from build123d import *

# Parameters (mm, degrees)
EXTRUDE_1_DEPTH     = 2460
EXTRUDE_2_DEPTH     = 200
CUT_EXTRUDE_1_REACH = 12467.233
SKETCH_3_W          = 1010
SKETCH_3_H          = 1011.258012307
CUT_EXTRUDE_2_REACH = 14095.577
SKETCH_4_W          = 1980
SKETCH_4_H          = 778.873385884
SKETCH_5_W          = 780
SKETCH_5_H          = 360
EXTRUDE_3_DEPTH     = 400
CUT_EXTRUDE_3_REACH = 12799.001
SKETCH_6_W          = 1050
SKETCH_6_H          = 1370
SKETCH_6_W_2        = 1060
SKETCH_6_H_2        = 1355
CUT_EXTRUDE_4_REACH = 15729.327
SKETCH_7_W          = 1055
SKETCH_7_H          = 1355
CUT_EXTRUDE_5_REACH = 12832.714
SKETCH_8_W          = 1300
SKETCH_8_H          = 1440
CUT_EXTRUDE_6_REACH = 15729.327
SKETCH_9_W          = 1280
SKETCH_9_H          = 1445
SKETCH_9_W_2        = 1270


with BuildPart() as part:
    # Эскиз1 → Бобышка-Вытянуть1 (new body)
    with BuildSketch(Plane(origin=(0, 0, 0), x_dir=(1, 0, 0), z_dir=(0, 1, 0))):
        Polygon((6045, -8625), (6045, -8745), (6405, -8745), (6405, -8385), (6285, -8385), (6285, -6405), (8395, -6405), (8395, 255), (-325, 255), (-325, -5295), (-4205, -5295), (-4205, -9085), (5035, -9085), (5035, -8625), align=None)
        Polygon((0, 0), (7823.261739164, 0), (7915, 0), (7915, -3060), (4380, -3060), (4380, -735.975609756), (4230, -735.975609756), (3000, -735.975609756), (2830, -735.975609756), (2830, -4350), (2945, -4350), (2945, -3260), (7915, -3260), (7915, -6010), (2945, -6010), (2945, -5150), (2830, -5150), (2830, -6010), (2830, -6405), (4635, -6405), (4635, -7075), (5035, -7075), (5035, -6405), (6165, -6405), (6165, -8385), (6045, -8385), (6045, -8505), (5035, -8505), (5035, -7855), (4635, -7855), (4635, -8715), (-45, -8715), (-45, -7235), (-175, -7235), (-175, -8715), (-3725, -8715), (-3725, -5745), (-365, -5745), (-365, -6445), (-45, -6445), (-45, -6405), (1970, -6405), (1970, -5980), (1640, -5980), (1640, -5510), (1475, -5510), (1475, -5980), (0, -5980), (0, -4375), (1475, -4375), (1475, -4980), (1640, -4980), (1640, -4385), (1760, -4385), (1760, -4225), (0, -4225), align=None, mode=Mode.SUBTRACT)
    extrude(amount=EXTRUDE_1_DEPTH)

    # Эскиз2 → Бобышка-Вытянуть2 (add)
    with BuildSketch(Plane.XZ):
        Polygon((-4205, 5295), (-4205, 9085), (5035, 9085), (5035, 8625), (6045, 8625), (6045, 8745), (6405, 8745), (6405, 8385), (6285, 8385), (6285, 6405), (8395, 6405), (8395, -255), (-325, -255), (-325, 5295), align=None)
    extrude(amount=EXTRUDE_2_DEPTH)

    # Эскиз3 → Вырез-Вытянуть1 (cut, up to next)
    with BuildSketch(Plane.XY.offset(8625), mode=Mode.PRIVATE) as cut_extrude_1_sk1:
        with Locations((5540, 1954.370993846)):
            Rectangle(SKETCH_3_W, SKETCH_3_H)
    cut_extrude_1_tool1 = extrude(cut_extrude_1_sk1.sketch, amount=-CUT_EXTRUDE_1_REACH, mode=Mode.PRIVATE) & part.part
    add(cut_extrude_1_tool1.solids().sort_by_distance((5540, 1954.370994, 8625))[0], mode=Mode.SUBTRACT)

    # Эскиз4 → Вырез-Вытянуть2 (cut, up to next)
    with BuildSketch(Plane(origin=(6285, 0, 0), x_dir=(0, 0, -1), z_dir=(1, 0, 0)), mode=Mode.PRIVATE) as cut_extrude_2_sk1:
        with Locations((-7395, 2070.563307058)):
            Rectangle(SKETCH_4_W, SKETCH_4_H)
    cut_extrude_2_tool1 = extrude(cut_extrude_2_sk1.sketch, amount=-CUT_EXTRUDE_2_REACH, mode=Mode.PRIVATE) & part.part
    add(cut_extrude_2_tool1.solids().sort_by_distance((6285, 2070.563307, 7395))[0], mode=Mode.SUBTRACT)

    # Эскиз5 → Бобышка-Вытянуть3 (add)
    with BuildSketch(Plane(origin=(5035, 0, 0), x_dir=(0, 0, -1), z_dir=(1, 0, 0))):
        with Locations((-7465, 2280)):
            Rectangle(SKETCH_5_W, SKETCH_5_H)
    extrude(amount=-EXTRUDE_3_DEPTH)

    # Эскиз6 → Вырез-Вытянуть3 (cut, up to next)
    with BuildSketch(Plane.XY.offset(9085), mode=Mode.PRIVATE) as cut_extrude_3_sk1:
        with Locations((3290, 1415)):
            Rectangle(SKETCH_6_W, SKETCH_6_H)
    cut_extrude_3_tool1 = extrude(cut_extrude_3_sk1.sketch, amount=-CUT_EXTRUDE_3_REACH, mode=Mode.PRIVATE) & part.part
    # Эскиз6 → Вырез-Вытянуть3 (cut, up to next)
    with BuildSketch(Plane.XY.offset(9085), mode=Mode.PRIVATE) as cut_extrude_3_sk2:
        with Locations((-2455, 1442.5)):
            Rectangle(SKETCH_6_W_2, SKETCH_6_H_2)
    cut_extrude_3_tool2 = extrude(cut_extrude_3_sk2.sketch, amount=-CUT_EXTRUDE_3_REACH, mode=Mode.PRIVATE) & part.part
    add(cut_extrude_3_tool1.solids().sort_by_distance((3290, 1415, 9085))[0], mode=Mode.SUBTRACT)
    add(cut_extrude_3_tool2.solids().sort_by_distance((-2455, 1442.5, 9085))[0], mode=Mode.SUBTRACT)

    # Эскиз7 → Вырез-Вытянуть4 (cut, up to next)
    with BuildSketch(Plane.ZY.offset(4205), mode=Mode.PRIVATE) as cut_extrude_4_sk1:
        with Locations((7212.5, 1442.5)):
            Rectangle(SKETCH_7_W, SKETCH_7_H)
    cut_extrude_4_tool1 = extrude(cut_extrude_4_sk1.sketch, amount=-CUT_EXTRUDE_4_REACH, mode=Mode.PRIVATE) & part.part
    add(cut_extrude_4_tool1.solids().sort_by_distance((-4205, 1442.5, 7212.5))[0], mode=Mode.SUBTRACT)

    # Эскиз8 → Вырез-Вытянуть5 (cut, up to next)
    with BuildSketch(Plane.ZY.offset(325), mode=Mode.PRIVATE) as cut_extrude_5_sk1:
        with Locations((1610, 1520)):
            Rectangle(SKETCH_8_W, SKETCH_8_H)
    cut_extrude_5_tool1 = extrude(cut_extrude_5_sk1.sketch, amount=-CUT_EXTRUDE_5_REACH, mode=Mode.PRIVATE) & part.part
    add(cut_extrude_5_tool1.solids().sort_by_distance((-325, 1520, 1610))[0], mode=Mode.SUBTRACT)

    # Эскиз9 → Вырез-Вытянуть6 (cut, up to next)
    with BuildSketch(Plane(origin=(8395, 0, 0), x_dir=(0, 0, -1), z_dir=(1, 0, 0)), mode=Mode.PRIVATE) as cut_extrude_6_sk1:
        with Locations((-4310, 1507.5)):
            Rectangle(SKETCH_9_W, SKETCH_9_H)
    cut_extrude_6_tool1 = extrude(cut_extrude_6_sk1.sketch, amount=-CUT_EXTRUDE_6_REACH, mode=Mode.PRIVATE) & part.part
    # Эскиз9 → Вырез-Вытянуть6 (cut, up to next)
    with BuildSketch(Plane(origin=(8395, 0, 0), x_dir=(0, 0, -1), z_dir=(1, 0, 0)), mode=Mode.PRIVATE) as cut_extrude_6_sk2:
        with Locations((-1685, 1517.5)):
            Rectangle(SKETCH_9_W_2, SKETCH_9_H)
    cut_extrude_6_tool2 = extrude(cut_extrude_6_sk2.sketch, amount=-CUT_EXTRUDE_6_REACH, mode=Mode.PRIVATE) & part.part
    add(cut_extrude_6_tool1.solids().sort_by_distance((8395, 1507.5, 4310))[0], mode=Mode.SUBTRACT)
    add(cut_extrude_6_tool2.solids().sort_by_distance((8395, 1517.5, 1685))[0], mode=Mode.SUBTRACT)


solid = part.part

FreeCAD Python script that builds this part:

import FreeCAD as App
import Part
import Sketcher

doc = App.newDocument("Part")
body = doc.addObject("PartDesign::Body", "Body")

# Sketch on XZ plane
sketch1 = body.newObject("Sketcher::SketchObject", "Sketch")
sketch1.AttachmentSupport = (doc.getObject("XZ_Plane"), [""])
sketch1.MapMode = "FlatFace"
sketch1.addGeometry(Part.LineSegment(App.Vector(6045, 8625, 0), App.Vector(6045, 8745, 0)), False)
sketch1.addGeometry(Part.LineSegment(App.Vector(6045, 8745, 0), App.Vector(6405, 8745, 0)), False)
sketch1.addGeometry(Part.LineSegment(App.Vector(6405, 8745, 0), App.Vector(6405, 8385, 0)), False)
sketch1.addGeometry(Part.LineSegment(App.Vector(6405, 8385, 0), App.Vector(6285, 8385, 0)), False)
sketch1.addGeometry(Part.LineSegment(App.Vector(6285, 8385, 0), App.Vector(6285, 6405, 0)), False)
sketch1.addGeometry(Part.LineSegment(App.Vector(6285, 6405, 0), App.Vector(8395, 6405, 0)), False)
sketch1.addGeometry(Part.LineSegment(App.Vector(8395, 6405, 0), App.Vector(8395, -255, 0)), False)
sketch1.addGeometry(Part.LineSegment(App.Vector(8395, -255, 0), App.Vector(-325, -255, 0)), False)
sketch1.addGeometry(Part.LineSegment(App.Vector(-325, -255, 0), App.Vector(-325, 5295, 0)), False)
sketch1.addGeometry(Part.LineSegment(App.Vector(-325, 5295, 0), App.Vector(-4205, 5295, 0)), False)
sketch1.addGeometry(Part.LineSegment(App.Vector(-4205, 5295, 0), App.Vector(-4205, 9085, 0)), False)
sketch1.addGeometry(Part.LineSegment(App.Vector(-4205, 9085, 0), App.Vector(5035, 9085, 0)), False)
sketch1.addGeometry(Part.LineSegment(App.Vector(5035, 9085, 0), App.Vector(5035, 8625, 0)), False)
sketch1.addGeometry(Part.LineSegment(App.Vector(5035, 8625, 0), App.Vector(6045, 8625, 0)), False)
sketch1.addGeometry(Part.LineSegment(App.Vector(0, 4225, 0), App.Vector(0, 0, 0)), False)
sketch1.addGeometry(Part.LineSegment(App.Vector(0, 0, 0), App.Vector(7915, 0, 0)), False)
sketch1.addGeometry(Part.LineSegment(App.Vector(7915, 0, 0), App.Vector(7915, 3060, 0)), False)
sketch1.addGeometry(Part.LineSegment(App.Vector(7915, 3060, 0), App.Vector(4380, 3060, 0)), False)
sketch1.addGeometry(Part.LineSegment(App.Vector(4380, 3060, 0), App.Vector(4380, 736, 0)), False)
sketch1.addGeometry(Part.LineSegment(App.Vector(4380, 736, 0), App.Vector(2830, 736, 0)), False)
sketch1.addGeometry(Part.LineSegment(App.Vector(2830, 736, 0), App.Vector(2830, 4350, 0)), False)
sketch1.addGeometry(Part.LineSegment(App.Vector(2830, 4350, 0), App.Vector(2945, 4350, 0)), False)
sketch1.addGeometry(Part.LineSegment(App.Vector(2945, 4350, 0), App.Vector(2945, 3260, 0)), False)
sketch1.addGeometry(Part.LineSegment(App.Vector(2945, 3260, 0), App.Vector(7915, 3260, 0)), False)
sketch1.addGeometry(Part.LineSegment(App.Vector(7915, 3260, 0), App.Vector(7915, 6010, 0)), False)
sketch1.addGeometry(Part.LineSegment(App.Vector(7915, 6010, 0), App.Vector(2945, 6010, 0)), False)
sketch1.addGeometry(Part.LineSegment(App.Vector(2945, 6010, 0), App.Vector(2945, 5150, 0)), False)
sketch1.addGeometry(Part.LineSegment(App.Vector(2945, 5150, 0), App.Vector(2830, 5150, 0)), False)
sketch1.addGeometry(Part.LineSegment(App.Vector(2830, 5150, 0), App.Vector(2830, 6405, 0)), False)
sketch1.addGeometry(Part.LineSegment(App.Vector(2830, 6405, 0), App.Vector(4635, 6405, 0)), False)
sketch1.addGeometry(Part.LineSegment(App.Vector(4635, 6405, 0), App.Vector(4635, 7075, 0)), False)
sketch1.addGeometry(Part.LineSegment(App.Vector(4635, 7075, 0), App.Vector(5035, 7075, 0)), False)
sketch1.addGeometry(Part.LineSegment(App.Vector(5035, 7075, 0), App.Vector(5035, 6405, 0)), False)
sketch1.addGeometry(Part.LineSegment(App.Vector(5035, 6405, 0), App.Vector(6165, 6405, 0)), False)
sketch1.addGeometry(Part.LineSegment(App.Vector(6165, 6405, 0), App.Vector(6165, 8385, 0)), False)
sketch1.addGeometry(Part.LineSegment(App.Vector(6165, 8385, 0), App.Vector(6045, 8385, 0)), False)
sketch1.addGeometry(Part.LineSegment(App.Vector(6045, 8385, 0), App.Vector(6045, 8505, 0)), False)
sketch1.addGeometry(Part.LineSegment(App.Vector(6045, 8505, 0), App.Vector(5035, 8505, 0)), False)
sketch1.addGeometry(Part.LineSegment(App.Vector(5035, 8505, 0), App.Vector(5035, 7855, 0)), False)
sketch1.addGeometry(Part.LineSegment(App.Vector(5035, 7855, 0), App.Vector(4635, 7855, 0)), False)
sketch1.addGeometry(Part.LineSegment(App.Vector(4635, 7855, 0), App.Vector(4635, 8715, 0)), False)
sketch1.addGeometry(Part.LineSegment(App.Vector(4635, 8715, 0), App.Vector(-45, 8715, 0)), False)
sketch1.addGeometry(Part.LineSegment(App.Vector(-45, 8715, 0), App.Vector(-45, 7235, 0)), False)
sketch1.addGeometry(Part.LineSegment(App.Vector(-45, 7235, 0), App.Vector(-175, 7235, 0)), False)
sketch1.addGeometry(Part.LineSegment(App.Vector(-175, 7235, 0), App.Vector(-175, 8715, 0)), False)
sketch1.addGeometry(Part.LineSegment(App.Vector(-175, 8715, 0), App.Vector(-3725, 8715, 0)), False)
sketch1.addGeometry(Part.LineSegment(App.Vector(-3725, 8715, 0), App.Vector(-3725, 5745, 0)), False)
sketch1.addGeometry(Part.LineSegment(App.Vector(-3725, 5745, 0), App.Vector(-365, 5745, 0)), False)
sketch1.addGeometry(Part.LineSegment(App.Vector(-365, 5745, 0), App.Vector(-365, 6445, 0)), False)
sketch1.addGeometry(Part.LineSegment(App.Vector(-365, 6445, 0), App.Vector(-45, 6445, 0)), False)
sketch1.addGeometry(Part.LineSegment(App.Vector(-45, 6445, 0), App.Vector(-45, 6405, 0)), False)
sketch1.addGeometry(Part.LineSegment(App.Vector(-45, 6405, 0), App.Vector(1970, 6405, 0)), False)
sketch1.addGeometry(Part.LineSegment(App.Vector(1970, 6405, 0), App.Vector(1970, 5980, 0)), False)
sketch1.addGeometry(Part.LineSegment(App.Vector(1970, 5980, 0), App.Vector(1640, 5980, 0)), False)
sketch1.addGeometry(Part.LineSegment(App.Vector(1640, 5980, 0), App.Vector(1640, 5510, 0)), False)
sketch1.addGeometry(Part.LineSegment(App.Vector(1640, 5510, 0), App.Vector(1475, 5510, 0)), False)
sketch1.addGeometry(Part.LineSegment(App.Vector(1475, 5510, 0), App.Vector(1475, 5980, 0)), False)
sketch1.addGeometry(Part.LineSegment(App.Vector(1475, 5980, 0), App.Vector(0, 5980, 0)), False)
sketch1.addGeometry(Part.LineSegment(App.Vector(0, 5980, 0), App.Vector(0, 4375, 0)), False)
sketch1.addGeometry(Part.LineSegment(App.Vector(0, 4375, 0), App.Vector(1475, 4375, 0)), False)
sketch1.addGeometry(Part.LineSegment(App.Vector(1475, 4375, 0), App.Vector(1475, 4980, 0)), False)
sketch1.addGeometry(Part.LineSegment(App.Vector(1475, 4980, 0), App.Vector(1640, 4980, 0)), False)
sketch1.addGeometry(Part.LineSegment(App.Vector(1640, 4980, 0), App.Vector(1640, 4385, 0)), False)
sketch1.addGeometry(Part.LineSegment(App.Vector(1640, 4385, 0), App.Vector(1760, 4385, 0)), False)
sketch1.addGeometry(Part.LineSegment(App.Vector(1760, 4385, 0), App.Vector(1760, 4225, 0)), False)
sketch1.addGeometry(Part.LineSegment(App.Vector(1760, 4225, 0), App.Vector(0, 4225, 0)), False)
sketch1.addConstraint(Sketcher.Constraint("Coincident", 0, 2, 1, 1))
sketch1.addConstraint(Sketcher.Constraint("Coincident", 1, 2, 2, 1))
sketch1.addConstraint(Sketcher.Constraint("Coincident", 2, 2, 3, 1))
sketch1.addConstraint(Sketcher.Constraint("Coincident", 3, 2, 4, 1))
sketch1.addConstraint(Sketcher.Constraint("Coincident", 4, 2, 5, 1))
sketch1.addConstraint(Sketcher.Constraint("Coincident", 5, 2, 6, 1))
sketch1.addConstraint(Sketcher.Constraint("Coincident", 6, 2, 7, 1))
sketch1.addConstraint(Sketcher.Constraint("Coincident", 7, 2, 8, 1))
sketch1.addConstraint(Sketcher.Constraint("Coincident", 8, 2, 9, 1))
sketch1.addConstraint(Sketcher.Constraint("Coincident", 9, 2, 10, 1))
sketch1.addConstraint(Sketcher.Constraint("Coincident", 10, 2, 11, 1))
sketch1.addConstraint(Sketcher.Constraint("Coincident", 11, 2, 12, 1))
sketch1.addConstraint(Sketcher.Constraint("Coincident", 12, 2, 13, 1))
sketch1.addConstraint(Sketcher.Constraint("Coincident", 13, 2, 0, 1))
sketch1.addConstraint(Sketcher.Constraint("Coincident", 14, 2, 15, 1))
sketch1.addConstraint(Sketcher.Constraint("Coincident", 15, 2, 16, 1))
sketch1.addConstraint(Sketcher.Constraint("Coincident", 16, 2, 17, 1))
sketch1.addConstraint(Sketcher.Constraint("Coincident", 17, 2, 18, 1))
sketch1.addConstraint(Sketcher.Constraint("Coincident", 18, 2, 19, 1))
sketch1.addConstraint(Sketcher.Constraint("Coincident", 19, 2, 20, 1))
sketch1.addConstraint(Sketcher.Constraint("Coincident", 20, 2, 21, 1))
sketch1.addConstraint(Sketcher.Constraint("Coincident", 21, 2, 22, 1))
sketch1.addConstraint(Sketcher.Constraint("Coincident", 22, 2, 23, 1))
sketch1.addConstraint(Sketcher.Constraint("Coincident", 23, 2, 24, 1))
sketch1.addConstraint(Sketcher.Constraint("Coincident", 24, 2, 25, 1))
sketch1.addConstraint(Sketcher.Constraint("Coincident", 25, 2, 26, 1))
sketch1.addConstraint(Sketcher.Constraint("Coincident", 26, 2, 27, 1))
sketch1.addConstraint(Sketcher.Constraint("Coincident", 27, 2, 28, 1))
sketch1.addConstraint(Sketcher.Constraint("Coincident", 28, 2, 29, 1))
sketch1.addConstraint(Sketcher.Constraint("Coincident", 29, 2, 30, 1))
sketch1.addConstraint(Sketcher.Constraint("Coincident", 30, 2, 31, 1))
sketch1.addConstraint(Sketcher.Constraint("Coincident", 31, 2, 32, 1))
sketch1.addConstraint(Sketcher.Constraint("Coincident", 32, 2, 33, 1))
sketch1.addConstraint(Sketcher.Constraint("Coincident", 33, 2, 34, 1))
sketch1.addConstraint(Sketcher.Constraint("Coincident", 34, 2, 35, 1))
sketch1.addConstraint(Sketcher.Constraint("Coincident", 35, 2, 36, 1))
sketch1.addConstraint(Sketcher.Constraint("Coincident", 36, 2, 37, 1))
sketch1.addConstraint(Sketcher.Constraint("Coincident", 37, 2, 38, 1))
sketch1.addConstraint(Sketcher.Constraint("Coincident", 38, 2, 39, 1))
sketch1.addConstraint(Sketcher.Constraint("Coincident", 39, 2, 40, 1))
sketch1.addConstraint(Sketcher.Constraint("Coincident", 40, 2, 41, 1))
sketch1.addConstraint(Sketcher.Constraint("Coincident", 41, 2, 42, 1))
sketch1.addConstraint(Sketcher.Constraint("Coincident", 42, 2, 43, 1))
sketch1.addConstraint(Sketcher.Constraint("Coincident", 43, 2, 44, 1))
sketch1.addConstraint(Sketcher.Constraint("Coincident", 44, 2, 45, 1))
sketch1.addConstraint(Sketcher.Constraint("Coincident", 45, 2, 46, 1))
sketch1.addConstraint(Sketcher.Constraint("Coincident", 46, 2, 47, 1))
sketch1.addConstraint(Sketcher.Constraint("Coincident", 47, 2, 48, 1))
sketch1.addConstraint(Sketcher.Constraint("Coincident", 48, 2, 49, 1))
sketch1.addConstraint(Sketcher.Constraint("Coincident", 49, 2, 50, 1))
sketch1.addConstraint(Sketcher.Constraint("Coincident", 50, 2, 51, 1))
sketch1.addConstraint(Sketcher.Constraint("Coincident", 51, 2, 52, 1))
sketch1.addConstraint(Sketcher.Constraint("Coincident", 52, 2, 53, 1))
sketch1.addConstraint(Sketcher.Constraint("Coincident", 53, 2, 54, 1))
sketch1.addConstraint(Sketcher.Constraint("Coincident", 54, 2, 55, 1))
sketch1.addConstraint(Sketcher.Constraint("Coincident", 55, 2, 56, 1))
sketch1.addConstraint(Sketcher.Constraint("Coincident", 56, 2, 57, 1))
sketch1.addConstraint(Sketcher.Constraint("Coincident", 57, 2, 58, 1))
sketch1.addConstraint(Sketcher.Constraint("Coincident", 58, 2, 59, 1))
sketch1.addConstraint(Sketcher.Constraint("Coincident", 59, 2, 60, 1))
sketch1.addConstraint(Sketcher.Constraint("Coincident", 60, 2, 61, 1))
sketch1.addConstraint(Sketcher.Constraint("Coincident", 61, 2, 62, 1))
sketch1.addConstraint(Sketcher.Constraint("Coincident", 62, 2, 63, 1))
sketch1.addConstraint(Sketcher.Constraint("Coincident", 63, 2, 64, 1))
sketch1.addConstraint(Sketcher.Constraint("Coincident", 64, 2, 65, 1))
sketch1.addConstraint(Sketcher.Constraint("Coincident", 65, 2, 14, 1))
sketch1.addConstraint(Sketcher.Constraint("Vertical", 0))
sketch1.addConstraint(Sketcher.Constraint("Horizontal", 1))
sketch1.addConstraint(Sketcher.Constraint("Vertical", 2))
sketch1.addConstraint(Sketcher.Constraint("Horizontal", 3))
sketch1.addConstraint(Sketcher.Constraint("Vertical", 4))
sketch1.addConstraint(Sketcher.Constraint("Horizontal", 5))
sketch1.addConstraint(Sketcher.Constraint("Vertical", 6))
sketch1.addConstraint(Sketcher.Constraint("Horizontal", 7))
sketch1.addConstraint(Sketcher.Constraint("Vertical", 8))
sketch1.addConstraint(Sketcher.Constraint("Horizontal", 9))
sketch1.addConstraint(Sketcher.Constraint("Vertical", 10))
sketch1.addConstraint(Sketcher.Constraint("Horizontal", 11))
sketch1.addConstraint(Sketcher.Constraint("Vertical", 12))
sketch1.addConstraint(Sketcher.Constraint("Horizontal", 13))
sketch1.addConstraint(Sketcher.Constraint("Vertical", 14))
sketch1.addConstraint(Sketcher.Constraint("Horizontal", 15))
sketch1.addConstraint(Sketcher.Constraint("Vertical", 16))
sketch1.addConstraint(Sketcher.Constraint("Horizontal", 17))
sketch1.addConstraint(Sketcher.Constraint("Vertical", 18))
sketch1.addConstraint(Sketcher.Constraint("Horizontal", 19))
sketch1.addConstraint(Sketcher.Constraint("Vertical", 20))
sketch1.addConstraint(Sketcher.Constraint("Horizontal", 21))
sketch1.addConstraint(Sketcher.Constraint("Vertical", 22))
sketch1.addConstraint(Sketcher.Constraint("Horizontal", 23))
sketch1.addConstraint(Sketcher.Constraint("Vertical", 24))
sketch1.addConstraint(Sketcher.Constraint("Horizontal", 25))
sketch1.addConstraint(Sketcher.Constraint("Vertical", 26))
sketch1.addConstraint(Sketcher.Constraint("Horizontal", 27))
sketch1.addConstraint(Sketcher.Constraint("Vertical", 28))
sketch1.addConstraint(Sketcher.Constraint("Horizontal", 29))
sketch1.addConstraint(Sketcher.Constraint("Vertical", 30))
sketch1.addConstraint(Sketcher.Constraint("Horizontal", 31))
sketch1.addConstraint(Sketcher.Constraint("Vertical", 32))
sketch1.addConstraint(Sketcher.Constraint("Horizontal", 33))
sketch1.addConstraint(Sketcher.Constraint("Vertical", 34))
sketch1.addConstraint(Sketcher.Constraint("Horizontal", 35))
sketch1.addConstraint(Sketcher.Constraint("Vertical", 36))
sketch1.addConstraint(Sketcher.Constraint("Horizontal", 37))
sketch1.addConstraint(Sketcher.Constraint("Vertical", 38))
sketch1.addConstraint(Sketcher.Constraint("Horizontal", 39))
sketch1.addConstraint(Sketcher.Constraint("Vertical", 40))
sketch1.addConstraint(Sketcher.Constraint("Horizontal", 41))
sketch1.addConstraint(Sketcher.Constraint("Vertical", 42))
sketch1.addConstraint(Sketcher.Constraint("Horizontal", 43))
sketch1.addConstraint(Sketcher.Constraint("Vertical", 44))
sketch1.addConstraint(Sketcher.Constraint("Horizontal", 45))
sketch1.addConstraint(Sketcher.Constraint("Vertical", 46))
sketch1.addConstraint(Sketcher.Constraint("Horizontal", 47))
sketch1.addConstraint(Sketcher.Constraint("Vertical", 48))
sketch1.addConstraint(Sketcher.Constraint("Horizontal", 49))
sketch1.addConstraint(Sketcher.Constraint("Vertical", 50))
sketch1.addConstraint(Sketcher.Constraint("Horizontal", 51))
sketch1.addConstraint(Sketcher.Constraint("Vertical", 52))
sketch1.addConstraint(Sketcher.Constraint("Horizontal", 53))
sketch1.addConstraint(Sketcher.Constraint("Vertical", 54))
sketch1.addConstraint(Sketcher.Constraint("Horizontal", 55))
sketch1.addConstraint(Sketcher.Constraint("Vertical", 56))
sketch1.addConstraint(Sketcher.Constraint("Horizontal", 57))
sketch1.addConstraint(Sketcher.Constraint("Vertical", 58))
sketch1.addConstraint(Sketcher.Constraint("Horizontal", 59))
sketch1.addConstraint(Sketcher.Constraint("Vertical", 60))
sketch1.addConstraint(Sketcher.Constraint("Horizontal", 61))
sketch1.addConstraint(Sketcher.Constraint("Vertical", 62))
sketch1.addConstraint(Sketcher.Constraint("Horizontal", 63))
sketch1.addConstraint(Sketcher.Constraint("Vertical", 64))
sketch1.addConstraint(Sketcher.Constraint("Horizontal", 65))
sketch1.addConstraint(Sketcher.Constraint("Coincident", 14, 2, -1, 1))
sketch1.addConstraint(Sketcher.Constraint("PointOnObject", 57, 2, -2))
sketch1.addConstraint(Sketcher.Constraint("Horizontal", 5, 2, 28, 2))
sketch1.addConstraint(Sketcher.Constraint("Horizontal", 29, 2, 32, 2))
sketch1.addConstraint(Sketcher.Constraint("Horizontal", 3, 2, 34, 2))
sketch1.addConstraint(Sketcher.Constraint("Horizontal", 41, 2, 44, 2))
sketch1.addConstraint(Sketcher.Constraint("Horizontal", 33, 2, 50, 2))
sketch1.addConstraint(Sketcher.Constraint("Horizontal", 53, 2, 56, 2))
sketch1.addConstraint(Sketcher.Constraint("Vertical", 16, 2, 23, 2))
sketch1.addConstraint(Sketcher.Constraint("Vertical", 22, 2, 25, 2))
sketch1.addConstraint(Sketcher.Constraint("Vertical", 20, 2, 27, 2))
sketch1.addConstraint(Sketcher.Constraint("Vertical", 12, 2, 31, 2))
sketch1.addConstraint(Sketcher.Constraint("Vertical", 13, 2, 35, 2))
sketch1.addConstraint(Sketcher.Constraint("Vertical", 32, 2, 37, 2))
sketch1.addConstraint(Sketcher.Constraint("Vertical", 30, 2, 39, 2))
sketch1.addConstraint(Sketcher.Constraint("Vertical", 42, 2, 49, 2))
sketch1.addConstraint(Sketcher.Constraint("Vertical", 56, 2, 59, 2))
sketch1.addConstraint(Sketcher.Constraint("Vertical", 54, 2, 61, 2))
sketch1.addConstraint(Sketcher.Constraint("Equal", 3, 35))
sketch1.addConstraint(Sketcher.Constraint("Equal", 35, 63))
sketch1.addConstraint(Sketcher.Constraint("Equal", 63, 0))
sketch1.addConstraint(Sketcher.Constraint("Equal", 1, 2))
sketch1.addConstraint(Sketcher.Constraint("Equal", 0, 36))
sketch1.addConstraint(Sketcher.Constraint("Equal", 26, 40))
sketch1.addConstraint(Sketcher.Constraint("DistanceX", 1, 1, 1, 2, 360.0))
sketch1.addConstraint(Sketcher.Constraint("DistanceX", 3, 2, 3, 1, 120.0))
sketch1.addConstraint(Sketcher.Constraint("DistanceX", 5, 1, 5, 2, 2110.0))
sketch1.addConstraint(Sketcher.Constraint("DistanceX", 7, 2, 7, 1, 8720.0))
sketch1.addConstraint(Sketcher.Constraint("DistanceX", 9, 2, 9, 1, 3880.0))
sketch1.addConstraint(Sketcher.Constraint("DistanceX", 11, 1, 11, 2, 9240.0))
sketch1.addConstraint(Sketcher.Constraint("DistanceX", 15, 1, 15, 2, 7915.0))
sketch1.addConstraint(Sketcher.Constraint("DistanceX", 17, 2, 17, 1, 3535.0))
sketch1.addConstraint(Sketcher.Constraint("DistanceX", 19, 2, 19, 1, 1550.0))
sketch1.addConstraint(Sketcher.Constraint("DistanceX", 21, 1, 21, 2, 115.0))
sketch1.addConstraint(Sketcher.Constraint("DistanceX", 29, 1, 29, 2, 1805.0))
sketch1.addConstraint(Sketcher.Constraint("DistanceX", 31, 1, 31, 2, 400.0))
sketch1.addConstraint(Sketcher.Constraint("DistanceX", 41, 2, 41, 1, 4680.0))
sketch1.addConstraint(Sketcher.Constraint("DistanceX", 43, 2, 43, 1, 130.0))
sketch1.addConstraint(Sketcher.Constraint("DistanceX", 45, 2, 45, 1, 3550.0))
sketch1.addConstraint(Sketcher.Constraint("DistanceX", 47, 1, 47, 2, 3360.0))
sketch1.addConstraint(Sketcher.Constraint("DistanceX", 51, 1, 51, 2, 2015.0))
sketch1.addConstraint(Sketcher.Constraint("DistanceX", 53, 2, 53, 1, 330.0))
sketch1.addConstraint(Sketcher.Constraint("DistanceX", 55, 2, 55, 1, 165.0))
sketch1.addConstraint(Sketcher.Constraint("DistanceY", 4, 2, 4, 1, 1980.0))
sketch1.addConstraint(Sketcher.Constraint("DistanceY", 6, 2, 6, 1, 6660.0))
sketch1.addConstraint(Sketcher.Constraint("DistanceY", 8, 1, 8, 2, 5550.0))
sketch1.addConstraint(Sketcher.Constraint("DistanceY", 10, 1, 10, 2, 3790.0))
sketch1.addConstraint(Sketcher.Constraint("DistanceY", 14, 2, 14, 1, 4225.0))
sketch1.addConstraint(Sketcher.Constraint("DistanceY", 16, 1, 16, 2, 3060.0))
sketch1.addConstraint(Sketcher.Constraint("DistanceY", 22, 2, 22, 1, 1090.0))
sketch1.addConstraint(Sketcher.Constraint("DistanceY", 24, 1, 24, 2, 2750.0))
sketch1.addConstraint(Sketcher.Constraint("DistanceY", 26, 2, 26, 1, 860.0))
sketch1.addConstraint(Sketcher.Constraint("DistanceY", 28, 1, 28, 2, 1255.0))
sketch1.addConstraint(Sketcher.Constraint("DistanceY", 30, 1, 30, 2, 670.0))
sketch1.addConstraint(Sketcher.Constraint("DistanceY", 38, 2, 38, 1, 650.0))
sketch1.addConstraint(Sketcher.Constraint("DistanceY", 42, 2, 42, 1, 1480.0))
sketch1.addConstraint(Sketcher.Constraint("DistanceY", 46, 2, 46, 1, 2970.0))
sketch1.addConstraint(Sketcher.Constraint("DistanceY", 48, 1, 48, 2, 700.0))
sketch1.addConstraint(Sketcher.Constraint("DistanceY", 52, 2, 52, 1, 425.0))
sketch1.addConstraint(Sketcher.Constraint("DistanceY", 54, 2, 54, 1, 470.0))
sketch1.addConstraint(Sketcher.Constraint("DistanceY", 58, 2, 58, 1, 1605.0))
sketch1.addConstraint(Sketcher.Constraint("DistanceY", 60, 1, 60, 2, 605.0))
sketch1.addConstraint(Sketcher.Constraint("DistanceY", 62, 2, 62, 1, 595.0))
sketch1.addConstraint(Sketcher.Constraint("DistanceY", 64, 2, 64, 1, 160.0))
sketch1.addConstraint(Sketcher.Constraint("DistanceY", 18, 2, 18, 1, 2324.02439))
pad1 = body.newObject("PartDesign::Pad", "Pad")
pad1.Profile = sketch1
pad1.Length = 2460
pad1.Reversed = True

# Sketch on XZ plane
sketch2 = body.newObject("Sketcher::SketchObject", "Sketch001")
sketch2.AttachmentSupport = (doc.getObject("XZ_Plane"), [""])
sketch2.MapMode = "FlatFace"
sketch2.addGeometry(Part.LineSegment(App.Vector(-4205, 9085, 0), App.Vector(-4205, 5295, 0)), False)
sketch2.addGeometry(Part.LineSegment(App.Vector(-4205, 5295, 0), App.Vector(-325, 5295, 0)), False)
sketch2.addGeometry(Part.LineSegment(App.Vector(-325, 5295, 0), App.Vector(-325, -255, 0)), False)
sketch2.addGeometry(Part.LineSegment(App.Vector(-325, -255, 0), App.Vector(8395, -255, 0)), False)
sketch2.addGeometry(Part.LineSegment(App.Vector(8395, -255, 0), App.Vector(8395, 6405, 0)), False)
sketch2.addGeometry(Part.LineSegment(App.Vector(8395, 6405, 0), App.Vector(6285, 6405, 0)), False)
sketch2.addGeometry(Part.LineSegment(App.Vector(6285, 6405, 0), App.Vector(6285, 8385, 0)), False)
sketch2.addGeometry(Part.LineSegment(App.Vector(6285, 8385, 0), App.Vector(6405, 8385, 0)), False)
sketch2.addGeometry(Part.LineSegment(App.Vector(6405, 8385, 0), App.Vector(6405, 8745, 0)), False)
sketch2.addGeometry(Part.LineSegment(App.Vector(6405, 8745, 0), App.Vector(6045, 8745, 0)), False)
sketch2.addGeometry(Part.LineSegment(App.Vector(6045, 8745, 0), App.Vector(6045, 8625, 0)), False)
sketch2.addGeometry(Part.LineSegment(App.Vector(6045, 8625, 0), App.Vector(5035, 8625, 0)), False)
sketch2.addGeometry(Part.LineSegment(App.Vector(5035, 8625, 0), App.Vector(5035, 9085, 0)), False)
sketch2.addGeometry(Part.LineSegment(App.Vector(5035, 9085, 0), App.Vector(-4205, 9085, 0)), False)
sketch2.addConstraint(Sketcher.Constraint("Coincident", 0, 2, 1, 1))
sketch2.addConstraint(Sketcher.Constraint("Coincident", 1, 2, 2, 1))
sketch2.addConstraint(Sketcher.Constraint("Coincident", 2, 2, 3, 1))
sketch2.addConstraint(Sketcher.Constraint("Coincident", 3, 2, 4, 1))
sketch2.addConstraint(Sketcher.Constraint("Coincident", 4, 2, 5, 1))
sketch2.addConstraint(Sketcher.Constraint("Coincident", 5, 2, 6, 1))
sketch2.addConstraint(Sketcher.Constraint("Coincident", 6, 2, 7, 1))
sketch2.addConstraint(Sketcher.Constraint("Coincident", 7, 2, 8, 1))
sketch2.addConstraint(Sketcher.Constraint("Coincident", 8, 2, 9, 1))
sketch2.addConstraint(Sketcher.Constraint("Coincident", 9, 2, 10, 1))
sketch2.addConstraint(Sketcher.Constraint("Coincident", 10, 2, 11, 1))
sketch2.addConstraint(Sketcher.Constraint("Coincident", 11, 2, 12, 1))
sketch2.addConstraint(Sketcher.Constraint("Coincident", 12, 2, 13, 1))
sketch2.addConstraint(Sketcher.Constraint("Coincident", 13, 2, 0, 1))
sketch2.addConstraint(Sketcher.Constraint("Vertical", 0))
sketch2.addConstraint(Sketcher.Constraint("Horizontal", 1))
sketch2.addConstraint(Sketcher.Constraint("Vertical", 2))
sketch2.addConstraint(Sketcher.Constraint("Horizontal", 3))
sketch2.addConstraint(Sketcher.Constraint("Vertical", 4))
sketch2.addConstraint(Sketcher.Constraint("Horizontal", 5))
sketch2.addConstraint(Sketcher.Constraint("Vertical", 6))
sketch2.addConstraint(Sketcher.Constraint("Horizontal", 7))
sketch2.addConstraint(Sketcher.Constraint("Vertical", 8))
sketch2.addConstraint(Sketcher.Constraint("Horizontal", 9))
sketch2.addConstraint(Sketcher.Constraint("Vertical", 10))
sketch2.addConstraint(Sketcher.Constraint("Horizontal", 11))
sketch2.addConstraint(Sketcher.Constraint("Vertical", 12))
sketch2.addConstraint(Sketcher.Constraint("Horizontal", 13))
sketch2.addConstraint(Sketcher.Constraint("Equal", 9, 8))
sketch2.addConstraint(Sketcher.Constraint("Equal", 7, 10))
sketch2.addConstraint(Sketcher.Constraint("DistanceX", 1, 1, 1, 2, 3880.0))
sketch2.addConstraint(Sketcher.Constraint("DistanceX", 3, 1, 3, 2, 8720.0))
sketch2.addConstraint(Sketcher.Constraint("DistanceX", 5, 2, 5, 1, 2110.0))
sketch2.addConstraint(Sketcher.Constraint("DistanceX", 7, 1, 7, 2, 120.0))
sketch2.addConstraint(Sketcher.Constraint("DistanceX", 9, 2, 9, 1, 360.0))
sketch2.addConstraint(Sketcher.Constraint("DistanceX", 11, 2, 11, 1, 1010.0))
sketch2.addConstraint(Sketcher.Constraint("DistanceY", 0, 2, 0, 1, 3790.0))
sketch2.addConstraint(Sketcher.Constraint("DistanceY", 2, 2, 2, 1, 5550.0))
sketch2.addConstraint(Sketcher.Constraint("DistanceY", 4, 1, 4, 2, 6660.0))
sketch2.addConstraint(Sketcher.Constraint("DistanceY", 6, 1, 6, 2, 1980.0))
sketch2.addConstraint(Sketcher.Constraint("DistanceX", 0, 2, -1, 1, 4205.0))
sketch2.addConstraint(Sketcher.Constraint("DistanceY", -1, 1, 0, 2, 5295.0))
pad2 = body.newObject("PartDesign::Pad", "Pad001")
pad2.Profile = sketch2
pad2.Length = 200

# Sketch on XY plane
sketch3 = body.newObject("Sketcher::SketchObject", "Sketch002")
sketch3.AttachmentSupport = (doc.getObject("XY_Plane"), [""])
sketch3.MapMode = "FlatFace"
sketch3.AttachmentOffset = App.Placement(App.Vector(0, 0, 8625), App.Rotation())
sketch3.addGeometry(Part.LineSegment(App.Vector(5035, 2460, 0), App.Vector(5035, 1449, 0)), False)
sketch3.addGeometry(Part.LineSegment(App.Vector(5035, 1449, 0), App.Vector(6045, 1449, 0)), False)
sketch3.addGeometry(Part.LineSegment(App.Vector(6045, 1449, 0), App.Vector(6045, 2460, 0)), False)
sketch3.addGeometry(Part.LineSegment(App.Vector(6045, 2460, 0), App.Vector(5035, 2460, 0)), False)
sketch3.addConstraint(Sketcher.Constraint("Coincident", 0, 2, 1, 1))
sketch3.addConstraint(Sketcher.Constraint("Coincident", 1, 2, 2, 1))
sketch3.addConstraint(Sketcher.Constraint("Coincident", 2, 2, 3, 1))
sketch3.addConstraint(Sketcher.Constraint("Coincident", 3, 2, 0, 1))
sketch3.addConstraint(Sketcher.Constraint("Vertical", 0))
sketch3.addConstraint(Sketcher.Constraint("Horizontal", 1))
sketch3.addConstraint(Sketcher.Constraint("Vertical", 2))
sketch3.addConstraint(Sketcher.Constraint("Horizontal", 3))
sketch3.addConstraint(Sketcher.Constraint("DistanceX", 1, 1, 1, 2, 1010.0))
sketch3.addConstraint(Sketcher.Constraint("DistanceX", -1, 1, 0, 2, 5035.0))
sketch3.addConstraint(Sketcher.Constraint("DistanceY", -1, 1, 2, 2, 2460.0))
sketch3.addConstraint(Sketcher.Constraint("DistanceY", 0, 2, 0, 1, 1011.258012))
pocket1 = body.newObject("PartDesign::Pocket", "Pocket")
pocket1.Profile = sketch3
pocket1.Type = "UpToFirst"

# Sketch on YZ plane
sketch4 = body.newObject("Sketcher::SketchObject", "Sketch003")
sketch4.AttachmentSupport = (doc.getObject("YZ_Plane"), [""])
sketch4.MapMode = "FlatFace"
sketch4.AttachmentOffset = App.Placement(App.Vector(0, 0, 6285), App.Rotation())
sketch4.addGeometry(Part.LineSegment(App.Vector(2460, 8385, 0), App.Vector(1681, 8385, 0)), False)
sketch4.addGeometry(Part.LineSegment(App.Vector(1681, 8385, 0), App.Vector(1681, 6405, 0)), False)
sketch4.addGeometry(Part.LineSegment(App.Vector(1681, 6405, 0), App.Vector(2460, 6405, 0)), False)
sketch4.addGeometry(Part.LineSegment(App.Vector(2460, 6405, 0), App.Vector(2460, 8385, 0)), False)
sketch4.addConstraint(Sketcher.Constraint("Coincident", 0, 2, 1, 1))
sketch4.addConstraint(Sketcher.Constraint("Coincident", 1, 2, 2, 1))
sketch4.addConstraint(Sketcher.Constraint("Coincident", 2, 2, 3, 1))
sketch4.addConstraint(Sketcher.Constraint("Coincident", 3, 2, 0, 1))
sketch4.addConstraint(Sketcher.Constraint("Horizontal", 0))
sketch4.addConstraint(Sketcher.Constraint("Vertical", 1))
sketch4.addConstraint(Sketcher.Constraint("Horizontal", 2))
sketch4.addConstraint(Sketcher.Constraint("Vertical", 3))
sketch4.addConstraint(Sketcher.Constraint("DistanceY", 1, 2, 1, 1, 1980.0))
sketch4.addConstraint(Sketcher.Constraint("DistanceY", -1, 1, 0, 2, 8385.0))
sketch4.addConstraint(Sketcher.Constraint("DistanceX", -1, 1, 2, 2, 2460.0))
sketch4.addConstraint(Sketcher.Constraint("DistanceX", 0, 2, 0, 1, 778.873386))
pocket2 = body.newObject("PartDesign::Pocket", "Pocket001")
pocket2.Profile = sketch4
pocket2.Type = "UpToFirst"

# Sketch on YZ plane
sketch5 = body.newObject("Sketcher::SketchObject", "Sketch004")
sketch5.AttachmentSupport = (doc.getObject("YZ_Plane"), [""])
sketch5.MapMode = "FlatFace"
sketch5.AttachmentOffset = App.Placement(App.Vector(0, 0, 5035), App.Rotation())
sketch5.addGeometry(Part.LineSegment(App.Vector(2460, 7855, 0), App.Vector(2100, 7855, 0)), False)
sketch5.addGeometry(Part.LineSegment(App.Vector(2100, 7855, 0), App.Vector(2100, 7075, 0)), False)
sketch5.addGeometry(Part.LineSegment(App.Vector(2100, 7075, 0), App.Vector(2460, 7075, 0)), False)
sketch5.addGeometry(Part.LineSegment(App.Vector(2460, 7075, 0), App.Vector(2460, 7855, 0)), False)
sketch5.addConstraint(Sketcher.Constraint("Coincident", 0, 2, 1, 1))
sketch5.addConstraint(Sketcher.Constraint("Coincident", 1, 2, 2, 1))
sketch5.addConstraint(Sketcher.Constraint("Coincident", 2, 2, 3, 1))
sketch5.addConstraint(Sketcher.Constraint("Coincident", 3, 2, 0, 1))
sketch5.addConstraint(Sketcher.Constraint("Horizontal", 0))
sketch5.addConstraint(Sketcher.Constraint("Vertical", 1))
sketch5.addConstraint(Sketcher.Constraint("Horizontal", 2))
sketch5.addConstraint(Sketcher.Constraint("Vertical", 3))
sketch5.addConstraint(Sketcher.Constraint("DistanceX", 0, 2, 0, 1, 360.0))
sketch5.addConstraint(Sketcher.Constraint("DistanceY", 1, 2, 1, 1, 780.0))
sketch5.addConstraint(Sketcher.Constraint("DistanceX", -1, 1, 0, 2, 2100.0))
sketch5.addConstraint(Sketcher.Constraint("DistanceY", -1, 1, 0, 2, 7855.0))
pad3 = body.newObject("PartDesign::Pad", "Pad002")
pad3.Profile = sketch5
pad3.Length = 400
pad3.Reversed = True

# Sketch on XY plane
sketch6 = body.newObject("Sketcher::SketchObject", "Sketch005")
sketch6.AttachmentSupport = (doc.getObject("XY_Plane"), [""])
sketch6.MapMode = "FlatFace"
sketch6.AttachmentOffset = App.Placement(App.Vector(0, 0, 9085), App.Rotation())
sketch6.addGeometry(Part.LineSegment(App.Vector(2765, 2100, 0), App.Vector(2765, 730, 0)), False)
sketch6.addGeometry(Part.LineSegment(App.Vector(2765, 730, 0), App.Vector(3815, 730, 0)), False)
sketch6.addGeometry(Part.LineSegment(App.Vector(3815, 730, 0), App.Vector(3815, 2100, 0)), False)
sketch6.addGeometry(Part.LineSegment(App.Vector(3815, 2100, 0), App.Vector(2765, 2100, 0)), False)
sketch6.addConstraint(Sketcher.Constraint("Coincident", 0, 2, 1, 1))
sketch6.addConstraint(Sketcher.Constraint("Coincident", 1, 2, 2, 1))
sketch6.addConstraint(Sketcher.Constraint("Coincident", 2, 2, 3, 1))
sketch6.addConstraint(Sketcher.Constraint("Coincident", 3, 2, 0, 1))
sketch6.addConstraint(Sketcher.Constraint("Vertical", 0))
sketch6.addConstraint(Sketcher.Constraint("Horizontal", 1))
sketch6.addConstraint(Sketcher.Constraint("Vertical", 2))
sketch6.addConstraint(Sketcher.Constraint("Horizontal", 3))
sketch6.addConstraint(Sketcher.Constraint("DistanceX", 1, 1, 1, 2, 1050.0))
sketch6.addConstraint(Sketcher.Constraint("DistanceY", 0, 2, 0, 1, 1370.0))
sketch6.addConstraint(Sketcher.Constraint("DistanceX", -1, 1, 0, 2, 2765.0))
sketch6.addConstraint(Sketcher.Constraint("DistanceY", -1, 1, 0, 2, 730.0))
pocket3 = body.newObject("PartDesign::Pocket", "Pocket002")
pocket3.Profile = sketch6
pocket3.Type = "UpToFirst"

# Sketch on XY plane
sketch7 = body.newObject("Sketcher::SketchObject", "Sketch006")
sketch7.AttachmentSupport = (doc.getObject("XY_Plane"), [""])
sketch7.MapMode = "FlatFace"
sketch7.AttachmentOffset = App.Placement(App.Vector(0, 0, 9085), App.Rotation())
sketch7.addGeometry(Part.LineSegment(App.Vector(-2985, 2120, 0), App.Vector(-2985, 765, 0)), False)
sketch7.addGeometry(Part.LineSegment(App.Vector(-2985, 765, 0), App.Vector(-1925, 765, 0)), False)
sketch7.addGeometry(Part.LineSegment(App.Vector(-1925, 765, 0), App.Vector(-1925, 2120, 0)), False)
sketch7.addGeometry(Part.LineSegment(App.Vector(-1925, 2120, 0), App.Vector(-2985, 2120, 0)), False)
sketch7.addConstraint(Sketcher.Constraint("Coincident", 0, 2, 1, 1))
sketch7.addConstraint(Sketcher.Constraint("Coincident", 1, 2, 2, 1))
sketch7.addConstraint(Sketcher.Constraint("Coincident", 2, 2, 3, 1))
sketch7.addConstraint(Sketcher.Constraint("Coincident", 3, 2, 0, 1))
sketch7.addConstraint(Sketcher.Constraint("Vertical", 0))
sketch7.addConstraint(Sketcher.Constraint("Horizontal", 1))
sketch7.addConstraint(Sketcher.Constraint("Vertical", 2))
sketch7.addConstraint(Sketcher.Constraint("Horizontal", 3))
sketch7.addConstraint(Sketcher.Constraint("DistanceX", 1, 1, 1, 2, 1060.0))
sketch7.addConstraint(Sketcher.Constraint("DistanceY", 0, 2, 0, 1, 1355.0))
sketch7.addConstraint(Sketcher.Constraint("DistanceX", 0, 2, -1, 1, 2985.0))
sketch7.addConstraint(Sketcher.Constraint("DistanceY", -1, 1, 0, 2, 765.0))
pocket4 = body.newObject("PartDesign::Pocket", "Pocket003")
pocket4.Profile = sketch7
pocket4.Type = "UpToFirst"

# Sketch on YZ plane
sketch8 = body.newObject("Sketcher::SketchObject", "Sketch007")
sketch8.AttachmentSupport = (doc.getObject("YZ_Plane"), [""])
sketch8.MapMode = "FlatFace"
sketch8.AttachmentOffset = App.Placement(App.Vector(0, 0, -4205), App.Rotation())
sketch8.addGeometry(Part.LineSegment(App.Vector(2120, 6685, 0), App.Vector(765, 6685, 0)), False)
sketch8.addGeometry(Part.LineSegment(App.Vector(765, 6685, 0), App.Vector(765, 7740, 0)), False)
sketch8.addGeometry(Part.LineSegment(App.Vector(765, 7740, 0), App.Vector(2120, 7740, 0)), False)
sketch8.addGeometry(Part.LineSegment(App.Vector(2120, 7740, 0), App.Vector(2120, 6685, 0)), False)
sketch8.addConstraint(Sketcher.Constraint("Coincident", 0, 2, 1, 1))
sketch8.addConstraint(Sketcher.Constraint("Coincident", 1, 2, 2, 1))
sketch8.addConstraint(Sketcher.Constraint("Coincident", 2, 2, 3, 1))
sketch8.addConstraint(Sketcher.Constraint("Coincident", 3, 2, 0, 1))
sketch8.addConstraint(Sketcher.Constraint("Horizontal", 0))
sketch8.addConstraint(Sketcher.Constraint("Vertical", 1))
sketch8.addConstraint(Sketcher.Constraint("Horizontal", 2))
sketch8.addConstraint(Sketcher.Constraint("Vertical", 3))
sketch8.addConstraint(Sketcher.Constraint("DistanceX", 0, 2, 0, 1, 1355.0))
sketch8.addConstraint(Sketcher.Constraint("DistanceY", 1, 1, 1, 2, 1055.0))
sketch8.addConstraint(Sketcher.Constraint("DistanceX", -1, 1, 0, 2, 765.0))
sketch8.addConstraint(Sketcher.Constraint("DistanceY", -1, 1, 0, 2, 6685.0))
pocket5 = body.newObject("PartDesign::Pocket", "Pocket004")
pocket5.Profile = sketch8
pocket5.Type = "UpToFirst"
pocket5.Reversed = True

# Sketch on YZ plane
sketch9 = body.newObject("Sketcher::SketchObject", "Sketch008")
sketch9.AttachmentSupport = (doc.getObject("YZ_Plane"), [""])
sketch9.MapMode = "FlatFace"
sketch9.AttachmentOffset = App.Placement(App.Vector(0, 0, -325), App.Rotation())
sketch9.addGeometry(Part.LineSegment(App.Vector(2240, 960, 0), App.Vector(800, 960, 0)), False)
sketch9.addGeometry(Part.LineSegment(App.Vector(800, 960, 0), App.Vector(800, 2260, 0)), False)
sketch9.addGeometry(Part.LineSegment(App.Vector(800, 2260, 0), App.Vector(2240, 2260, 0)), False)
sketch9.addGeometry(Part.LineSegment(App.Vector(2240, 2260, 0), App.Vector(2240, 960, 0)), False)
sketch9.addConstraint(Sketcher.Constraint("Coincident", 0, 2, 1, 1))
sketch9.addConstraint(Sketcher.Constraint("Coincident", 1, 2, 2, 1))
sketch9.addConstraint(Sketcher.Constraint("Coincident", 2, 2, 3, 1))
sketch9.addConstraint(Sketcher.Constraint("Coincident", 3, 2, 0, 1))
sketch9.addConstraint(Sketcher.Constraint("Horizontal", 0))
sketch9.addConstraint(Sketcher.Constraint("Vertical", 1))
sketch9.addConstraint(Sketcher.Constraint("Horizontal", 2))
sketch9.addConstraint(Sketcher.Constraint("Vertical", 3))
sketch9.addConstraint(Sketcher.Constraint("DistanceX", 0, 2, 0, 1, 1440.0))
sketch9.addConstraint(Sketcher.Constraint("DistanceY", 1, 1, 1, 2, 1300.0))
sketch9.addConstraint(Sketcher.Constraint("DistanceX", -1, 1, 0, 2, 800.0))
sketch9.addConstraint(Sketcher.Constraint("DistanceY", -1, 1, 0, 2, 960.0))
pocket6 = body.newObject("PartDesign::Pocket", "Pocket005")
pocket6.Profile = sketch9
pocket6.Type = "UpToFirst"
pocket6.Reversed = True

# Sketch on YZ plane
sketch10 = body.newObject("Sketcher::SketchObject", "Sketch009")
sketch10.AttachmentSupport = (doc.getObject("YZ_Plane"), [""])
sketch10.MapMode = "FlatFace"
sketch10.AttachmentOffset = App.Placement(App.Vector(0, 0, 8395), App.Rotation())
sketch10.addGeometry(Part.LineSegment(App.Vector(2230, 4950, 0), App.Vector(785, 4950, 0)), False)
sketch10.addGeometry(Part.LineSegment(App.Vector(785, 4950, 0), App.Vector(785, 3670, 0)), False)
sketch10.addGeometry(Part.LineSegment(App.Vector(785, 3670, 0), App.Vector(2230, 3670, 0)), False)
sketch10.addGeometry(Part.LineSegment(App.Vector(2230, 3670, 0), App.Vector(2230, 4950, 0)), False)
sketch10.addConstraint(Sketcher.Constraint("Coincident", 0, 2, 1, 1))
sketch10.addConstraint(Sketcher.Constraint("Coincident", 1, 2, 2, 1))
sketch10.addConstraint(Sketcher.Constraint("Coincident", 2, 2, 3, 1))
sketch10.addConstraint(Sketcher.Constraint("Coincident", 3, 2, 0, 1))
sketch10.addConstraint(Sketcher.Constraint("Horizontal", 0))
sketch10.addConstraint(Sketcher.Constraint("Vertical", 1))
sketch10.addConstraint(Sketcher.Constraint("Horizontal", 2))
sketch10.addConstraint(Sketcher.Constraint("Vertical", 3))
sketch10.addConstraint(Sketcher.Constraint("DistanceX", 0, 2, 0, 1, 1445.0))
sketch10.addConstraint(Sketcher.Constraint("DistanceY", 1, 2, 1, 1, 1280.0))
sketch10.addConstraint(Sketcher.Constraint("DistanceX", -1, 1, 0, 2, 785.0))
sketch10.addConstraint(Sketcher.Constraint("DistanceY", -1, 1, 0, 2, 4950.0))
pocket7 = body.newObject("PartDesign::Pocket", "Pocket006")
pocket7.Profile = sketch10
pocket7.Type = "UpToFirst"

# Sketch on YZ plane
sketch11 = body.newObject("Sketcher::SketchObject", "Sketch010")
sketch11.AttachmentSupport = (doc.getObject("YZ_Plane"), [""])
sketch11.MapMode = "FlatFace"
sketch11.AttachmentOffset = App.Placement(App.Vector(0, 0, 8395), App.Rotation())
sketch11.addGeometry(Part.LineSegment(App.Vector(2240, 2320, 0), App.Vector(795, 2320, 0)), False)
sketch11.addGeometry(Part.LineSegment(App.Vector(795, 2320, 0), App.Vector(795, 1050, 0)), False)
sketch11.addGeometry(Part.LineSegment(App.Vector(795, 1050, 0), App.Vector(2240, 1050, 0)), False)
sketch11.addGeometry(Part.LineSegment(App.Vector(2240, 1050, 0), App.Vector(2240, 2320, 0)), False)
sketch11.addConstraint(Sketcher.Constraint("Coincident", 0, 2, 1, 1))
sketch11.addConstraint(Sketcher.Constraint("Coincident", 1, 2, 2, 1))
sketch11.addConstraint(Sketcher.Constraint("Coincident", 2, 2, 3, 1))
sketch11.addConstraint(Sketcher.Constraint("Coincident", 3, 2, 0, 1))
sketch11.addConstraint(Sketcher.Constraint("Horizontal", 0))
sketch11.addConstraint(Sketcher.Constraint("Vertical", 1))
sketch11.addConstraint(Sketcher.Constraint("Horizontal", 2))
sketch11.addConstraint(Sketcher.Constraint("Vertical", 3))
sketch11.addConstraint(Sketcher.Constraint("DistanceX", 0, 2, 0, 1, 1445.0))
sketch11.addConstraint(Sketcher.Constraint("DistanceY", 1, 2, 1, 1, 1270.0))
sketch11.addConstraint(Sketcher.Constraint("DistanceX", -1, 1, 0, 2, 795.0))
sketch11.addConstraint(Sketcher.Constraint("DistanceY", -1, 1, 0, 2, 2320.0))
pocket8 = body.newObject("PartDesign::Pocket", "Pocket007")
pocket8.Profile = sketch11
pocket8.Type = "UpToFirst"

doc.recompute()
